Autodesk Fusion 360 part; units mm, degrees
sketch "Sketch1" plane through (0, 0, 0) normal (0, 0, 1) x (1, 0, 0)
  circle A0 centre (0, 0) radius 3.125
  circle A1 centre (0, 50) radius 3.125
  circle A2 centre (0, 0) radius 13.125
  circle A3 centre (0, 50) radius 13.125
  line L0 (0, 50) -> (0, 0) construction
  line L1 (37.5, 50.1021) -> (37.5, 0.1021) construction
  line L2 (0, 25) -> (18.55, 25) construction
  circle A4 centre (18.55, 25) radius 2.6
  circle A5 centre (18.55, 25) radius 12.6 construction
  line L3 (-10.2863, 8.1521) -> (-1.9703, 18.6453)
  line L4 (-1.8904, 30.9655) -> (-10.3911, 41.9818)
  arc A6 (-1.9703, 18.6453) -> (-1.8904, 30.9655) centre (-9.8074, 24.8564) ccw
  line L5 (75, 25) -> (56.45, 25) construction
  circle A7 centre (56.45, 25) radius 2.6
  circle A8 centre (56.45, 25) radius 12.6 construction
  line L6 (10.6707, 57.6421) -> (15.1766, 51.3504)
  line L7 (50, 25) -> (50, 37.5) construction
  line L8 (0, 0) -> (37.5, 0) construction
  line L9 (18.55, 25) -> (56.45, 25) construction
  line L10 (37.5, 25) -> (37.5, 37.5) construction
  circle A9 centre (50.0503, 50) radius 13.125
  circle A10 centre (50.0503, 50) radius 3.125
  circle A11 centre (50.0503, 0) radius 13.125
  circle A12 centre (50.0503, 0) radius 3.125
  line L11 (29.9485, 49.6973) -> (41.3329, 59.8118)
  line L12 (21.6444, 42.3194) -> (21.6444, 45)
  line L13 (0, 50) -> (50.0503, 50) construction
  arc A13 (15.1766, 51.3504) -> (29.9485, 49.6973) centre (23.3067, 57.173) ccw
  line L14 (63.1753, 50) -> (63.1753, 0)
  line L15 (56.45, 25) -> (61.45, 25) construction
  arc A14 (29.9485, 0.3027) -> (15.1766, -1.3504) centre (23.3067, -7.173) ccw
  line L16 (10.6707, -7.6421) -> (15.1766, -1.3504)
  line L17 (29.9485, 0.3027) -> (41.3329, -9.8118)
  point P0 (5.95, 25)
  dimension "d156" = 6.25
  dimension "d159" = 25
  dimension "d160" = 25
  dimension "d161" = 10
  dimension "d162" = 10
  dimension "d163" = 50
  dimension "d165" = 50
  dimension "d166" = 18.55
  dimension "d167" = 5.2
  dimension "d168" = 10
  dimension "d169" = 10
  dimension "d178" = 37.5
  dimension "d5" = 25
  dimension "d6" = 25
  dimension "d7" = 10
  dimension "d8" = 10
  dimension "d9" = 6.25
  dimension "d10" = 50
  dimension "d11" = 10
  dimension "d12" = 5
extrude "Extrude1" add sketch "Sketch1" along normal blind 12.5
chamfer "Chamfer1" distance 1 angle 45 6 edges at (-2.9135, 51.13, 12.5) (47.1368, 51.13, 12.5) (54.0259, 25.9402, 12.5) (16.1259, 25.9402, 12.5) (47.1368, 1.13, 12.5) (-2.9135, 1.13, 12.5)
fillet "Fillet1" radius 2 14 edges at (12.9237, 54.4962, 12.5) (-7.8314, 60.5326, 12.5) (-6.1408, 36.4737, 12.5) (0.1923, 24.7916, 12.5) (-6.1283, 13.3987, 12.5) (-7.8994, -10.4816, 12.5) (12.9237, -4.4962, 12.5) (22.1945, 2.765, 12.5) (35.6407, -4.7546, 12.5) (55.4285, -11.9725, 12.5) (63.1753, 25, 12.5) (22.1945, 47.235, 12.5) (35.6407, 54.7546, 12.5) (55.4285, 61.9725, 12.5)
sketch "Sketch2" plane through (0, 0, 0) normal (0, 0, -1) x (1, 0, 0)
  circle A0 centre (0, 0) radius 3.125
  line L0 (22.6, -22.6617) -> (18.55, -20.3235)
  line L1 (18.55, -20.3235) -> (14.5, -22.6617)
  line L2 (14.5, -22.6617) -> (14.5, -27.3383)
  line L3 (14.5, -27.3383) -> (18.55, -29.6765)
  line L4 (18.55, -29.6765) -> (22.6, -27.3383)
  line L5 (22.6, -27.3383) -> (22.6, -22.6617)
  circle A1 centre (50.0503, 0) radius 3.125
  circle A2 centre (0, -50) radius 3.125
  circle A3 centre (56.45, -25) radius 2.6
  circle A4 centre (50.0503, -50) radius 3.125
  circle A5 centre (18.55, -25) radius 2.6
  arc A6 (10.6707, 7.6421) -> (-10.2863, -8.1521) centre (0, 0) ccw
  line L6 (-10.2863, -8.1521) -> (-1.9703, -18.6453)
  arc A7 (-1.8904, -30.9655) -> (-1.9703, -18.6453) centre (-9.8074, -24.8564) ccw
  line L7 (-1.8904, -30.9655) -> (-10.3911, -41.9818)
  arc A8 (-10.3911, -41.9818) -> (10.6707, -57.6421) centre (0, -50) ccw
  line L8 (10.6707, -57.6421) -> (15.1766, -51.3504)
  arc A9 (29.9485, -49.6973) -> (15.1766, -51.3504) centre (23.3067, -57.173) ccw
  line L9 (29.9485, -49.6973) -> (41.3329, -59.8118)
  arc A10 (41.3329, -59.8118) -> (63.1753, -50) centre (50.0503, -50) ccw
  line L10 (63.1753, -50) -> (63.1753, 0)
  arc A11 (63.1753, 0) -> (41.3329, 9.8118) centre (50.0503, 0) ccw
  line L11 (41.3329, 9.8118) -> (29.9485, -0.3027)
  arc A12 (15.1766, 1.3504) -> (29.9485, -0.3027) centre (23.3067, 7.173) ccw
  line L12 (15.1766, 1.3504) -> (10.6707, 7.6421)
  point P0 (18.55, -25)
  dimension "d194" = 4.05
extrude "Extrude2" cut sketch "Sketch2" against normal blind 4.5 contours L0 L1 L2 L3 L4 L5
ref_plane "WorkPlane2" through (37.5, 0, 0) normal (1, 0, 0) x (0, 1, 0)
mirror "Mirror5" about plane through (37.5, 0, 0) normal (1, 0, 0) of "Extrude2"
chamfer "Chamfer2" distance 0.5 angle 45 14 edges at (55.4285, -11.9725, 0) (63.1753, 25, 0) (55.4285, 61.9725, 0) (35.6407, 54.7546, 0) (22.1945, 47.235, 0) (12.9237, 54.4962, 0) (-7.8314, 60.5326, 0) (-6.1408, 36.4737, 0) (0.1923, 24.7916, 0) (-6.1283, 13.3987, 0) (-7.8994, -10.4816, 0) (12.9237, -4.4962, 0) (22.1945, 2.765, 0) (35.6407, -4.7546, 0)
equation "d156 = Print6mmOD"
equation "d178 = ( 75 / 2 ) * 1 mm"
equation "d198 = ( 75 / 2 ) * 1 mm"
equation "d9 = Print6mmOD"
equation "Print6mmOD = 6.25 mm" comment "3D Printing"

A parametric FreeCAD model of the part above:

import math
import FreeCAD as App
import Part
import Sketcher
from FreeCAD import Vector
Q = App.Units.Quantity


def edges_at(feature, points):
    """Names of the edges that pass closest to the given points."""
    edges = feature.Shape.Edges
    near = lambda p: min(range(len(edges)), key=lambda i: edges[i].distToShape(Part.Vertex(*p))[0])
    return sorted({f"Edge{near(p) + 1}" for p in points})


def add_polygon(sketch, points):
    """Adds a closed chain of lines whose ends are joined by coincident constraints."""
    first, n = sketch.GeometryCount, len(points)
    for a, b in zip(points, points[1:] + points[:1]):
        sketch.addGeometry(Part.LineSegment(App.Vector(*a, 0), App.Vector(*b, 0)), False)
    for i in range(n):
        sketch.addConstraint(Sketcher.Constraint("Coincident", first + i, 2, first + (i + 1) % n, 1))

doc = App.newDocument("Part")
body = doc.addObject("PartDesign::Body", "Body")

sketch1 = body.newObject("Sketcher::SketchObject", "Sketch")
sketch1.AttachmentSupport = (doc.getObject("XY_Plane"), [""])
sketch1.MapMode = "FlatFace"
sketch1.addGeometry([
    Part.ArcOfCircle(Part.Circle(Vector(0, 0, 0), Vector(0, 0, 1), 13.125), math.radians(141.602466), math.radians(324.390668)),
    Part.LineSegment(Vector(10.6707, -7.6421, 0), Vector(15.1766, -1.3504, 0)),
    Part.ArcOfCircle(Part.Circle(Vector(23.3067, -7.173, 0), Vector(0, 0, 1), 9.99998), math.radians(48.38045), math.radians(144.390589)),
    Part.LineSegment(Vector(29.9485, 0.3027, 0), Vector(41.3329, -9.8118, 0)),
    Part.ArcOfCircle(Part.Circle(Vector(50.0503, 0, 0), Vector(0, 0, 1), 13.125), math.radians(-131.619836), math.radians(0)),
    Part.LineSegment(Vector(63.1753, 0, 0), Vector(63.1753, 50, 0)),
    Part.ArcOfCircle(Part.Circle(Vector(50.0503, 50, 0), Vector(0, 0, 1), 13.125), math.radians(0), math.radians(131.619836)),
    Part.LineSegment(Vector(41.3329, 59.8118, 0), Vector(29.9485, 49.6973, 0)),
    Part.ArcOfCircle(Part.Circle(Vector(23.3067, 57.173, 0), Vector(0, 0, 1), 10.00006), math.radians(-144.390589), math.radians(-48.38045)),
    Part.LineSegment(Vector(15.1766, 51.3504, 0), Vector(10.6707, 57.6421, 0)),
    Part.ArcOfCircle(Part.Circle(Vector(0, 50, 0), Vector(0, 0, 1), 13.125), math.radians(35.609332), math.radians(217.655254)),
    Part.LineSegment(Vector(-10.3911, 41.9818, 0), Vector(-1.8904, 30.9655, 0)),
    Part.ArcOfCircle(Part.Circle(Vector(-9.8074, 24.8564, 0), Vector(0, 0, 1), 9.999895), math.radians(-38.397715), math.radians(37.655333)),
    Part.LineSegment(Vector(-1.9703, 18.6453, 0), Vector(-10.2863, 8.1521, 0)),
    Part.Circle(Vector(0, 0, 0), Vector(0, 0, 1), 3.125),
    Part.Circle(Vector(18.55, 25, 0), Vector(0, 0, 1), 2.6),
    Part.Circle(Vector(56.45, 25, 0), Vector(0, 0, 1), 2.6),
    Part.Circle(Vector(0, 50, 0), Vector(0, 0, 1), 3.125),
    Part.Circle(Vector(50.0503, 50, 0), Vector(0, 0, 1), 3.125),
    Part.Circle(Vector(50.0503, 0, 0), Vector(0, 0, 1), 3.125),
], False)
sketch1.addConstraint([
    Sketcher.Constraint("Tangent", 0, 2, 1, 1),
    Sketcher.Constraint("Tangent", 1, 2, 2, 2),
    Sketcher.Constraint("Tangent", 2, 1, 3, 1),
    Sketcher.Constraint("Tangent", 3, 2, 4, 1),
    Sketcher.Constraint("Tangent", 4, 2, 5, 1),
    Sketcher.Constraint("Tangent", 5, 2, 6, 1),
    Sketcher.Constraint("Tangent", 6, 2, 7, 1),
    Sketcher.Constraint("Tangent", 7, 2, 8, 2),
    Sketcher.Constraint("Tangent", 8, 1, 9, 1),
    Sketcher.Constraint("Tangent", 9, 2, 10, 1),
    Sketcher.Constraint("Tangent", 10, 2, 11, 1),
    Sketcher.Constraint("Tangent", 11, 2, 12, 2),
    Sketcher.Constraint("Tangent", 12, 1, 13, 1),
    Sketcher.Constraint("Tangent", 13, 2, 0, 1),
    Sketcher.Constraint("Vertical", 5),
    Sketcher.Constraint("Coincident", 0, 3, -1, 1),
    Sketcher.Constraint("Coincident", 14, 3, -1, 1),
    Sketcher.Constraint("Coincident", 17, 3, 10, 3),
    Sketcher.Constraint("Coincident", 18, 3, 6, 3),
    Sketcher.Constraint("Coincident", 19, 3, 4, 3),
    Sketcher.Constraint("Equal", 0, 4),
    Sketcher.Constraint("Equal", 4, 6),
    Sketcher.Constraint("Equal", 2, 8),
    Sketcher.Constraint("Equal", 6, 10),
    Sketcher.Constraint("Equal", 8, 12),
    Sketcher.Constraint("Equal", 15, 16),
    Sketcher.Constraint("Equal", 14, 17),
    Sketcher.Constraint("Equal", 17, 18),
    Sketcher.Constraint("Equal", 18, 19),
    Sketcher.Constraint("PointOnObject", 4, 3, -1),
    Sketcher.Constraint("PointOnObject", 10, 3, -2),
    Sketcher.Constraint("Horizontal", 6, 3, 10, 3),
    Sketcher.Constraint("Horizontal", 15, 3, 16, 3),
    Sketcher.Constraint("Vertical", 2, 3, 8, 3),
    Sketcher.Constraint("Vertical", 3, 2, 6, 2),
    Sketcher.Constraint("Radius", 2, Q("10 mm")),
    Sketcher.Constraint("Diameter", 15, Q("5.2 mm")),
    Sketcher.Constraint("Diameter", 14, Q("6.25 mm")),
    Sketcher.Constraint("DistanceY", 5, 1, 5, 2, Q("50 mm")),
    Sketcher.Constraint("DistanceY", -1, 1, 15, 3, Q("25 mm")),
    Sketcher.Constraint("DistanceX", -1, 1, 15, 3, Q("18.55 mm")),
    Sketcher.Constraint("Radius", 0, Q("13.125 mm")),
    Sketcher.Constraint("Angle", 1, Q("54.391 deg")),
    Sketcher.Constraint("Angle", 3, Q("-41.6196 deg")),
    Sketcher.Constraint("DistanceX", 15, 3, 16, 3, Q("37.9 mm")),
    Sketcher.Constraint("DistanceX", 12, 1, 11, 2, Q("0.08 mm")),
    Sketcher.Constraint("Distance", 13, Q("13.389 mm")),
    Sketcher.Constraint("DistanceY", 2, 3, -1, 1, Q("7.173 mm")),
])
pad1 = body.newObject("PartDesign::Pad", "Pad")
pad1.Profile = sketch1
pad1.Length = 12.5
doc.recompute()

chamfer = body.newObject("PartDesign::Chamfer", "Chamfer")
chamfer.Base = (pad1, edges_at(pad1, [
    (-2.913, 51.13, 12.5),
    (47.137, 51.13, 12.5),
    (54.026, 25.94, 12.5),
    (16.126, 25.94, 12.5),
    (47.137, 1.13, 12.5),
    (-2.913, 1.13, 12.5),
]))
chamfer.Size = 1
doc.recompute()

fillet = body.newObject("PartDesign::Fillet", "Fillet")
fillet.Base = (chamfer, edges_at(chamfer, [
    (12.924, 54.496, 12.5),
    (-7.831, 60.533, 12.5),
    (-6.141, 36.474, 12.5),
    (0.192, 24.792, 12.5),
    (-6.128, 13.399, 12.5),
    (-7.899, -10.482, 12.5),
    (12.924, -4.496, 12.5),
    (22.195, 2.765, 12.5),
    (35.641, -4.755, 12.5),
    (55.428, -11.973, 12.5),
    (63.175, 25, 12.5),
    (22.195, 47.235, 12.5),
    (35.641, 54.755, 12.5),
    (55.428, 61.972, 12.5),
]))
fillet.Radius = 2

sketch2 = body.newObject("Sketcher::SketchObject", "Sketch001")
sketch2.AttachmentSupport = (doc.getObject("XY_Plane"), [""])
sketch2.MapMode = "FlatFace"
add_polygon(sketch2, [(22.6, 27.3383), (22.6, 22.6617), (18.55, 20.3235), (14.5, 22.6617), (14.5, 27.3383), (18.55, 29.6765)])
sketch2.addGeometry(Part.Circle(Vector(18.55, 25, 0), Vector(0, 0, 1), 2.6), False)
sketch2.addConstraint([
    Sketcher.Constraint("Vertical", 0),
    Sketcher.Constraint("Vertical", 3),
    Sketcher.Constraint("Parallel", 1, 4),
    Sketcher.Constraint("Parallel", 2, 5),
    Sketcher.Constraint("Horizontal", 0, 2, 2, 2),
    Sketcher.Constraint("Horizontal", 3, 2, 5, 2),
    Sketcher.Constraint("Vertical", 6, 3, 1, 2),
    Sketcher.Constraint("Vertical", 1, 2, 4, 2),
    Sketcher.Constraint("Diameter", 6, Q("5.2 mm")),
    Sketcher.Constraint("Angle", 1, Q("-150.0007 deg")),
    Sketcher.Constraint("DistanceX", 6, 3, 0, 2, Q("4.05 mm")),
    Sketcher.Constraint("DistanceY", -1, 1, 6, 3, Q("25 mm")),
    Sketcher.Constraint("DistanceX", -1, 1, 0, 2, Q("22.6 mm")),
    Sketcher.Constraint("DistanceY", 0, 2, 0, 1, Q("4.6766 mm")),
    Sketcher.Constraint("DistanceY", -1, 1, 0, 2, Q("22.6617 mm")),
])
pocket1 = body.newObject("PartDesign::Pocket", "Pocket")
pocket1.Profile = sketch2
pocket1.Length = 4.5
pocket1.Reversed = True
doc.recompute()

datumplane = body.newObject("PartDesign::Plane", "DatumPlane")
datumplane.AttachmentSupport = (doc.getObject("YZ_Plane"), [""])
datumplane.MapMode = "FlatFace"
datumplane.AttachmentOffset = App.Placement(Vector(0, 0, 37.5), App.Rotation())
mirrored = body.newObject("PartDesign::Mirrored", "Mirrored")
mirrored.Originals = [pocket1]
mirrored.MirrorPlane = (datumplane, [""])
body.Tip = mirrored
doc.recompute()

chamfer2 = body.newObject("PartDesign::Chamfer", "Chamfer001")
chamfer2.Base = (mirrored, edges_at(mirrored, [
    (55.428, -11.973, 0),
    (63.175, 25, 0),
    (55.428, 61.972, 0),
    (35.641, 54.755, 0),
    (22.195, 47.235, 0),
    (12.924, 54.496, 0),
    (-7.831, 60.533, 0),
    (-6.141, 36.474, 0),
    (0.192, 24.792, 0),
    (-6.128, 13.399, 0),
    (-7.899, -10.482, 0),
    (12.924, -4.496, 0),
    (22.195, 2.765, 0),
    (35.641, -4.755, 0),
]))
chamfer2.Size = 0.5

doc.recompute()
